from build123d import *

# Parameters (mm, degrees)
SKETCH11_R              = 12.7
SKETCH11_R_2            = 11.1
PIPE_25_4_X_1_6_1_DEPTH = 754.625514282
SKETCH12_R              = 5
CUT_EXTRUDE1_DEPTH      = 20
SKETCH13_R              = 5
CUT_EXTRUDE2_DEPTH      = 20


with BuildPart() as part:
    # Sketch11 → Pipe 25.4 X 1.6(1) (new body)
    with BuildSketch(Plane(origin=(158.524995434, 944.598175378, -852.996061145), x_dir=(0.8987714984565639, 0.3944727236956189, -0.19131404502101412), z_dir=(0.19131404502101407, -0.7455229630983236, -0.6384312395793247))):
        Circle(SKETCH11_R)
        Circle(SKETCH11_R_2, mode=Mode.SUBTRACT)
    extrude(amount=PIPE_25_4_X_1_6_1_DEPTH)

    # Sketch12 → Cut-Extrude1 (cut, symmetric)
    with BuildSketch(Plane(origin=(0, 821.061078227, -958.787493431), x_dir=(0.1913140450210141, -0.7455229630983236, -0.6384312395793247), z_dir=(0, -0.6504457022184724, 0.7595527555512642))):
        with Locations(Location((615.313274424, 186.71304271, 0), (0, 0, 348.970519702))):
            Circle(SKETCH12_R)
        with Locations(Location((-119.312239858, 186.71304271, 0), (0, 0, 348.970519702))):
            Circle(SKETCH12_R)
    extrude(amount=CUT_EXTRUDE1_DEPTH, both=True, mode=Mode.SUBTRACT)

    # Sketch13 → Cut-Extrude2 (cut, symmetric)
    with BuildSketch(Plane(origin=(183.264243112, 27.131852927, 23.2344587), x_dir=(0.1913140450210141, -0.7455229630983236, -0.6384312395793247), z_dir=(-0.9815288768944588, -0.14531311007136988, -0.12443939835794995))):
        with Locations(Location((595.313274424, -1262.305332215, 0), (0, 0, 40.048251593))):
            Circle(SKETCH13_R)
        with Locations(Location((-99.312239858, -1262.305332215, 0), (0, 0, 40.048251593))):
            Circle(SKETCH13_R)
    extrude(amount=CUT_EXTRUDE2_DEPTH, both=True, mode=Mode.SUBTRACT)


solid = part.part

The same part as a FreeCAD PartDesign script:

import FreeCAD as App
import Part
import Sketcher

V = App.Vector
Q = App.Units.Quantity

doc = App.newDocument("Part")
body = doc.addObject("PartDesign::Body", "Body")

sketch1 = body.newObject("Sketcher::SketchObject", "Sketch")
sketch1.Placement = App.Placement(V(158.524995, 944.598175, -852.996061), App.Rotation(V(0.898771498, 0.394472724, -0.191314045), V(0.394472724, -0.537202738, 0.745522963), V(0.191314045, -0.745522963, -0.63843124), "ZXY"))
sketch1.addGeometry([
    Part.Circle(V(0, 0, 0), V(0, 0, 1), 13),
    Part.Circle(V(0, 0, 0), V(0, 0, 1), 11),
], False)
sketch1.addConstraint([
    Sketcher.Constraint("Coincident", 0, 3, -1, 1),
    Sketcher.Constraint("Coincident", 1, 3, -1, 1),
    Sketcher.Constraint("Diameter", 0, Q("25.4 mm")),
    Sketcher.Constraint("Diameter", 1, Q("22.2 mm")),
])
pad1 = body.newObject("PartDesign::Pad", "Pad")
pad1.Profile = sketch1
pad1.Length = 754.625514

sketch2 = body.newObject("Sketcher::SketchObject", "Sketch001")
sketch2.Placement = App.Placement(V(0, 821.061078, -958.787493), App.Rotation(V(0.191314045, -0.745522963, -0.63843124), V(0.981528877, 0.14531311, 0.124439398), V(0, -0.650445702, 0.759552756), "ZXY"))
sketch2.addGeometry([
    Part.Circle(V(615, 187, 0), V(0, 0, 1), 5),
    Part.Circle(V(-119, 187, 0), V(0, 0, 1), 5),
], False)
sketch2.addConstraint([
    Sketcher.Constraint("Equal", 0, 1),
    Sketcher.Constraint("Horizontal", 0, 3, 1, 3),
    Sketcher.Constraint("Diameter", 0, Q("10 mm")),
    Sketcher.Constraint("DistanceX", 1, 3, -1, 1, Q("119.31224 mm")),
    Sketcher.Constraint("DistanceX", -1, 1, 0, 3, Q("615.313275 mm")),
    Sketcher.Constraint("DistanceY", -1, 1, 0, 3, Q("186.713043 mm")),
])
pocket1 = body.newObject("PartDesign::Pocket", "Pocket")
pocket1.Profile = sketch2
pocket1.Length = 40
pocket1.Midplane = True

sketch3 = body.newObject("Sketcher::SketchObject", "Sketch002")
sketch3.Placement = App.Placement(V(183.264243, 27.131853, 23.234459), App.Rotation(V(0.191314045, -0.745522963, -0.63843124), V(0, -0.650445703, 0.759552756), V(-0.981528877, -0.14531311, -0.124439398), "ZXY"))
sketch3.addGeometry([
    Part.Circle(V(595, -1262, 0), V(0, 0, 1), 5),
    Part.Circle(V(-99, -1262, 0), V(0, 0, 1), 5),
], False)
sketch3.addConstraint([
    Sketcher.Constraint("Equal", 0, 1),
    Sketcher.Constraint("Horizontal", 0, 3, 1, 3),
    Sketcher.Constraint("Diameter", 0, Q("10 mm")),
    Sketcher.Constraint("DistanceX", 1, 3, -1, 1, Q("99.31224 mm")),
    Sketcher.Constraint("DistanceX", -1, 1, 0, 3, Q("595.313275 mm")),
    Sketcher.Constraint("DistanceY", 0, 3, -1, 1, Q("1262.305333 mm")),
])
pocket2 = body.newObject("PartDesign::Pocket", "Pocket001")
pocket2.Profile = sketch3
pocket2.Length = 40
pocket2.Midplane = True

doc.recompute()
